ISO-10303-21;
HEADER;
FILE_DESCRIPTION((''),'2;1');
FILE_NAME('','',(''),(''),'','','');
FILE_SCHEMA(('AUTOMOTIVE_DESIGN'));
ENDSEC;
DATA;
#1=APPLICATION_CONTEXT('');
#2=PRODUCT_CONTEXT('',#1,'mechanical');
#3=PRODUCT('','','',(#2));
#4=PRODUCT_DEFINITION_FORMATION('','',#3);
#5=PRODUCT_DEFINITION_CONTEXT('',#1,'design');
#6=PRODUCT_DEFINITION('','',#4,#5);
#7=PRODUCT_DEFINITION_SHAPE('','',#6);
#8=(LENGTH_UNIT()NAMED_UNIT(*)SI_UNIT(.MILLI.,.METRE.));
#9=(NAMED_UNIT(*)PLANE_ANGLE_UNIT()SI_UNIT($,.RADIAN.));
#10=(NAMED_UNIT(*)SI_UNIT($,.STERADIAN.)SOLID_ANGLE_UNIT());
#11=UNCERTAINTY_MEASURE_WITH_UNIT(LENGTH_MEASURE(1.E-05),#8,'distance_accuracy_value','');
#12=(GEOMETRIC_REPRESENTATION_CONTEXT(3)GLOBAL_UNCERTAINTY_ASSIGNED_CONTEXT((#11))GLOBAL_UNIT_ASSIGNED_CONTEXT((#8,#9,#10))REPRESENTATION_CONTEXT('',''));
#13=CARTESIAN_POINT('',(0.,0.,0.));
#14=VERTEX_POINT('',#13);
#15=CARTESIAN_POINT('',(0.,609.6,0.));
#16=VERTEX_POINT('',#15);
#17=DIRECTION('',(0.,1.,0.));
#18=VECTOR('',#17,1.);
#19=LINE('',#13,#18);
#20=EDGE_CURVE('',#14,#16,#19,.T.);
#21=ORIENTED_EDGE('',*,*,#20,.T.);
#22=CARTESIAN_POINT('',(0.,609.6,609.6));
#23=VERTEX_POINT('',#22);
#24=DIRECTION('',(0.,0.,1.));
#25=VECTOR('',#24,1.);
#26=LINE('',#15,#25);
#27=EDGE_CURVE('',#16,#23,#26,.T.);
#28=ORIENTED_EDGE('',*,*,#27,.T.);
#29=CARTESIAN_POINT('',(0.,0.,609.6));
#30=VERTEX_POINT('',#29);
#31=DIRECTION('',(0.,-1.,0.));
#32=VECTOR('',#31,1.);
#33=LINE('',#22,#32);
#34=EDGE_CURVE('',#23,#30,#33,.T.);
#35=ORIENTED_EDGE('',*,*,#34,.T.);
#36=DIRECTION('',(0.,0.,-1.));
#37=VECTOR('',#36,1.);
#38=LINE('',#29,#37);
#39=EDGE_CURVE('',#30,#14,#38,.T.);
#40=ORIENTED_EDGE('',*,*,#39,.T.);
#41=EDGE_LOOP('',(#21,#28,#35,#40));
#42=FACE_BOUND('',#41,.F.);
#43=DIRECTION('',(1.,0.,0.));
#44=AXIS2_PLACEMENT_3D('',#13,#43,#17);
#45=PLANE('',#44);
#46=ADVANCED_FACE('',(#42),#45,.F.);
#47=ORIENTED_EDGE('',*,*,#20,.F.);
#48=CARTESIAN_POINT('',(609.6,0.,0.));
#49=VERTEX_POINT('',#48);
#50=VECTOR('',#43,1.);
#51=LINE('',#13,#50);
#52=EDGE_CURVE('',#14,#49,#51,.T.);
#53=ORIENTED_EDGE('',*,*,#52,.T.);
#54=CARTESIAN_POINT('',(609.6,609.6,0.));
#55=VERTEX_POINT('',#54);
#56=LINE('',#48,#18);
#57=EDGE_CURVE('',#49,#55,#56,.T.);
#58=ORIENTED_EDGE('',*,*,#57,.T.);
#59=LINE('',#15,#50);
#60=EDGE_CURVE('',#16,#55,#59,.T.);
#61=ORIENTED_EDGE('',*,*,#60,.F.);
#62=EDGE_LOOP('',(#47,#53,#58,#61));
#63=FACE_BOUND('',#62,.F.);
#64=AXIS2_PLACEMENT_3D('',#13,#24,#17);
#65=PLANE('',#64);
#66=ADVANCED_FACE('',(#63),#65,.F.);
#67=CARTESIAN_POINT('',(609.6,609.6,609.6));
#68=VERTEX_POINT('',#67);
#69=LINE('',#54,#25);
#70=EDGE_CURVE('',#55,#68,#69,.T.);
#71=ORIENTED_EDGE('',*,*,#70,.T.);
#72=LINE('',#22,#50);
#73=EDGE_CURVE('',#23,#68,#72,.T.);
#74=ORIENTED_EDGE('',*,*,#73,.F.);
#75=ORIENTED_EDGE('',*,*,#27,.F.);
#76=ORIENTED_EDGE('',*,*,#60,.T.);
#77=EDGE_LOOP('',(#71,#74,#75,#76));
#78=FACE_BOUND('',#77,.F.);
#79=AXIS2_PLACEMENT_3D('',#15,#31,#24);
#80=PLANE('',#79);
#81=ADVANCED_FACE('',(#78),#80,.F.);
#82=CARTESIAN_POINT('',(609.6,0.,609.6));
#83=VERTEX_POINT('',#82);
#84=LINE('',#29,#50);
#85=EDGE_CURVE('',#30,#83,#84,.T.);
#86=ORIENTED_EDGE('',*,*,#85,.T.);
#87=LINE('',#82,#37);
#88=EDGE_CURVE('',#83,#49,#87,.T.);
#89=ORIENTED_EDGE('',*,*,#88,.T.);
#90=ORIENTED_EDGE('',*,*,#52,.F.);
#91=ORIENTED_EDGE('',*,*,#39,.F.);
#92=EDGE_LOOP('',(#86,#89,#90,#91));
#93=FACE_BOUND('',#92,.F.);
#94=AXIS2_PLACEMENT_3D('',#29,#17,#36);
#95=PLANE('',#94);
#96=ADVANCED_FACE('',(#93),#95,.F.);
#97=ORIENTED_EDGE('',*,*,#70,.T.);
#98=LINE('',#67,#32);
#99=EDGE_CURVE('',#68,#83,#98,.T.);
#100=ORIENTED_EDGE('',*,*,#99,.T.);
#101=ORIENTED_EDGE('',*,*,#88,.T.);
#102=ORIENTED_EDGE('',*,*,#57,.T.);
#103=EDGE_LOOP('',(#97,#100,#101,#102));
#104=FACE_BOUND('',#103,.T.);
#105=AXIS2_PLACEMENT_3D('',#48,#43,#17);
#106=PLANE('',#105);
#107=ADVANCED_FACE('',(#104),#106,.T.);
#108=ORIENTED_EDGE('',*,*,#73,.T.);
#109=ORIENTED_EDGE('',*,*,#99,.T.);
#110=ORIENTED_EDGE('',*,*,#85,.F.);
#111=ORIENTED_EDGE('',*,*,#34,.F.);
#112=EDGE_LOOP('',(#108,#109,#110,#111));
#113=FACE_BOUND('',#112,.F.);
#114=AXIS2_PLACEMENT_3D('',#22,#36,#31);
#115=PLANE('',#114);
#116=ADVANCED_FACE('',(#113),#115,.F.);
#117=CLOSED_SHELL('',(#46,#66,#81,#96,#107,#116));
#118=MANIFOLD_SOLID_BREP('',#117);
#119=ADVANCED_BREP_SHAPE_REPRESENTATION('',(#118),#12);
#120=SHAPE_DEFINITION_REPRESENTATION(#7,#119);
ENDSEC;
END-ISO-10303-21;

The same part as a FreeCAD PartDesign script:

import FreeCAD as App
import Part
import Sketcher
Q = App.Units.Quantity

doc = App.newDocument("Part")
body = doc.addObject("PartDesign::Body", "Body")

sketch1 = doc.addObject("Sketcher::SketchObject", "Sketch")
body.addObject(sketch1)
sketch1.AttachmentSupport = (doc.YZ_Plane, [""])
sketch1.MapMode = "FlatFace"
sketch1.addGeometry(Part.LineSegment(App.Vector(0, 610, 0), App.Vector(0, 0, 0)), False)
sketch1.addGeometry(Part.LineSegment(App.Vector(0, 0, 0), App.Vector(610, 0, 0)), False)
sketch1.addGeometry(Part.LineSegment(App.Vector(610, 0, 0), App.Vector(610, 610, 0)), False)
sketch1.addGeometry(Part.LineSegment(App.Vector(610, 610, 0), App.Vector(0, 610, 0)), False)
sketch1.addConstraint(Sketcher.Constraint("Coincident", 0, 2, 1, 1))
sketch1.addConstraint(Sketcher.Constraint("Coincident", 1, 2, 2, 1))
sketch1.addConstraint(Sketcher.Constraint("Coincident", 2, 2, 3, 1))
sketch1.addConstraint(Sketcher.Constraint("Coincident", 3, 2, 0, 1))
sketch1.addConstraint(Sketcher.Constraint("Vertical", 0))
sketch1.addConstraint(Sketcher.Constraint("Horizontal", 1))
sketch1.addConstraint(Sketcher.Constraint("Vertical", 2))
sketch1.addConstraint(Sketcher.Constraint("Horizontal", 3))
sketch1.addConstraint(Sketcher.Constraint("Coincident", 0, 2, -1, 1))
sketch1.addConstraint(Sketcher.Constraint("Equal", 3, 0))
sketch1.addConstraint(Sketcher.Constraint("DistanceX", 1, 1, 1, 2, Q("24 in")))
pad1 = doc.addObject("PartDesign::Pad", "Pad")
body.addObject(pad1)
pad1.Profile = sketch1
pad1.Length = Q("24 in")

doc.recompute()
